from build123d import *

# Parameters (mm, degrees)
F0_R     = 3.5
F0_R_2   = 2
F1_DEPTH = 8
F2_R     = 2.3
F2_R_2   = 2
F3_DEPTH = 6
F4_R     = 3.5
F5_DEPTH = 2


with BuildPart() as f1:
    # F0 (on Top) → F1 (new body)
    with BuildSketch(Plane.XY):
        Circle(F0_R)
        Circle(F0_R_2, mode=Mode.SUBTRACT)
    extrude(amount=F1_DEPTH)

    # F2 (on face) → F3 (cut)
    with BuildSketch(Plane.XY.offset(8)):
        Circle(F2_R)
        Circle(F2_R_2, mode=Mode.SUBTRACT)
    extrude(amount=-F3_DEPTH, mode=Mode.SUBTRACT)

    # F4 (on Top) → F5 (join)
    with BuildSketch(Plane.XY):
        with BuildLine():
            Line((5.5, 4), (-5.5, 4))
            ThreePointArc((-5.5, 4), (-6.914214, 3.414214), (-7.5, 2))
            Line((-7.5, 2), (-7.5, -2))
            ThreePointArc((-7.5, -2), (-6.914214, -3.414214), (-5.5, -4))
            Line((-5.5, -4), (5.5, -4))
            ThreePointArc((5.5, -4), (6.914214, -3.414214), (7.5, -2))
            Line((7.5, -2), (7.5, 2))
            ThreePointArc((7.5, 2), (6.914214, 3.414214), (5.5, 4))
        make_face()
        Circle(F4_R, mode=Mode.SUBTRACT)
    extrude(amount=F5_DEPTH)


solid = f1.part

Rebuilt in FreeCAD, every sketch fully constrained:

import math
import FreeCAD as App
import Part
import Sketcher
from FreeCAD import Vector
Q = App.Units.Quantity

doc = App.newDocument("Part")
body = doc.addObject("PartDesign::Body", "Body")

# Sketch on XY plane
sketch1 = body.newObject("Sketcher::SketchObject", "Sketch")
sketch1.AttachmentSupport = (doc.getObject("XY_Plane"), [""])
sketch1.MapMode = "FlatFace"
sketch1.addGeometry([
    Part.Circle(Vector(0, 0, 0), Vector(0, 0, 1), 3.5),
    Part.Circle(Vector(0, 0, 0), Vector(0, 0, 1), 2),
], False)
sketch1.addConstraint([
    Sketcher.Constraint("Coincident", 0, 3, -1, 1),
    Sketcher.Constraint("Coincident", 1, 3, -1, 1),
    Sketcher.Constraint("Diameter", 0, Q("7 mm")),
    Sketcher.Constraint("Diameter", 1, Q("4 mm")),
])
pad1 = body.newObject("PartDesign::Pad", "Pad")
pad1.Profile = sketch1
pad1.Length = 8

# Sketch on XY plane
sketch2 = body.newObject("Sketcher::SketchObject", "Sketch001")
sketch2.AttachmentSupport = (doc.getObject("XY_Plane"), [""])
sketch2.MapMode = "FlatFace"
sketch2.AttachmentOffset = App.Placement(Vector(0, 0, 8), App.Rotation())
sketch2.addGeometry([
    Part.Circle(Vector(0, 0, 0), Vector(0, 0, 1), 2.3),
    Part.Circle(Vector(0, 0, 0), Vector(0, 0, 1), 2),
], False)
sketch2.addConstraint([
    Sketcher.Constraint("Coincident", 0, 3, -1, 1),
    Sketcher.Constraint("Coincident", 1, 3, -1, 1),
    Sketcher.Constraint("Diameter", 1, Q("4 mm")),
    Sketcher.Constraint("Diameter", 0, Q("4.6 mm")),
])
pocket1 = body.newObject("PartDesign::Pocket", "Pocket")
pocket1.Profile = sketch2
pocket1.Length = 6

# Sketch on XY plane
sketch3 = body.newObject("Sketcher::SketchObject", "Sketch002")
sketch3.AttachmentSupport = (doc.getObject("XY_Plane"), [""])
sketch3.MapMode = "FlatFace"
sketch3.addGeometry([
    Part.LineSegment(Vector(5.5, 4, 0), Vector(-5.5, 4, 0)),  # 0
    Part.ArcOfCircle(Part.Circle(Vector(-5.5, 2, 0), Vector(0, 0, 1), 2), math.radians(90), math.radians(180)),  # 1
    Part.LineSegment(Vector(-7.5, 2, 0), Vector(-7.5, -2, 0)),  # 2
    Part.ArcOfCircle(Part.Circle(Vector(-5.5, -2, 0), Vector(0, 0, 1), 2), math.radians(180), math.radians(270)),  # 3
    Part.LineSegment(Vector(-5.5, -4, 0), Vector(5.5, -4, 0)),  # 4
    Part.ArcOfCircle(Part.Circle(Vector(5.5, -2, 0), Vector(0, 0, 1), 2), math.radians(-90), math.radians(0)),  # 5
    Part.LineSegment(Vector(7.5, -2, 0), Vector(7.5, 2, 0)),  # 6
    Part.ArcOfCircle(Part.Circle(Vector(5.5, 2, 0), Vector(0, 0, 1), 2), math.radians(0), math.radians(90)),  # 7
    Part.Circle(Vector(0, 0, 0), Vector(0, 0, 1), 3.5),  # 8
], False)
sketch3.addConstraint([
    Sketcher.Constraint("Tangent", 0, 2, 1, 1),
    Sketcher.Constraint("Tangent", 1, 2, 2, 1),
    Sketcher.Constraint("Tangent", 2, 2, 3, 1),
    Sketcher.Constraint("Tangent", 3, 2, 4, 1),
    Sketcher.Constraint("Tangent", 4, 2, 5, 1),
    Sketcher.Constraint("Tangent", 5, 2, 6, 1),
    Sketcher.Constraint("Tangent", 6, 2, 7, 1),
    Sketcher.Constraint("Tangent", 7, 2, 0, 1),
    Sketcher.Constraint("Horizontal", 0),
    Sketcher.Constraint("Vertical", 2),
    Sketcher.Constraint("Horizontal", 4),
    Sketcher.Constraint("Vertical", 6),
    Sketcher.Constraint("Coincident", 8, 3, -1, 1),
    Sketcher.Constraint("Equal", 1, 3),
    Sketcher.Constraint("Equal", 3, 5),
    Sketcher.Constraint("Equal", 5, 7),
    Sketcher.Constraint("Symmetric", 1, 3, 5, 3, -1, 1),
    Sketcher.Constraint("Diameter", 8, Q("7 mm")),
    Sketcher.Constraint("Radius", 1, Q("1.999999 mm")),
    Sketcher.Constraint("DistanceX", 0, 2, 0, 1, Q("11 mm")),
    Sketcher.Constraint("DistanceY", 2, 2, 2, 1, Q("4 mm")),
])
pad2 = body.newObject("PartDesign::Pad", "Pad001")
pad2.Profile = sketch3
pad2.Length = 2

doc.recompute()
